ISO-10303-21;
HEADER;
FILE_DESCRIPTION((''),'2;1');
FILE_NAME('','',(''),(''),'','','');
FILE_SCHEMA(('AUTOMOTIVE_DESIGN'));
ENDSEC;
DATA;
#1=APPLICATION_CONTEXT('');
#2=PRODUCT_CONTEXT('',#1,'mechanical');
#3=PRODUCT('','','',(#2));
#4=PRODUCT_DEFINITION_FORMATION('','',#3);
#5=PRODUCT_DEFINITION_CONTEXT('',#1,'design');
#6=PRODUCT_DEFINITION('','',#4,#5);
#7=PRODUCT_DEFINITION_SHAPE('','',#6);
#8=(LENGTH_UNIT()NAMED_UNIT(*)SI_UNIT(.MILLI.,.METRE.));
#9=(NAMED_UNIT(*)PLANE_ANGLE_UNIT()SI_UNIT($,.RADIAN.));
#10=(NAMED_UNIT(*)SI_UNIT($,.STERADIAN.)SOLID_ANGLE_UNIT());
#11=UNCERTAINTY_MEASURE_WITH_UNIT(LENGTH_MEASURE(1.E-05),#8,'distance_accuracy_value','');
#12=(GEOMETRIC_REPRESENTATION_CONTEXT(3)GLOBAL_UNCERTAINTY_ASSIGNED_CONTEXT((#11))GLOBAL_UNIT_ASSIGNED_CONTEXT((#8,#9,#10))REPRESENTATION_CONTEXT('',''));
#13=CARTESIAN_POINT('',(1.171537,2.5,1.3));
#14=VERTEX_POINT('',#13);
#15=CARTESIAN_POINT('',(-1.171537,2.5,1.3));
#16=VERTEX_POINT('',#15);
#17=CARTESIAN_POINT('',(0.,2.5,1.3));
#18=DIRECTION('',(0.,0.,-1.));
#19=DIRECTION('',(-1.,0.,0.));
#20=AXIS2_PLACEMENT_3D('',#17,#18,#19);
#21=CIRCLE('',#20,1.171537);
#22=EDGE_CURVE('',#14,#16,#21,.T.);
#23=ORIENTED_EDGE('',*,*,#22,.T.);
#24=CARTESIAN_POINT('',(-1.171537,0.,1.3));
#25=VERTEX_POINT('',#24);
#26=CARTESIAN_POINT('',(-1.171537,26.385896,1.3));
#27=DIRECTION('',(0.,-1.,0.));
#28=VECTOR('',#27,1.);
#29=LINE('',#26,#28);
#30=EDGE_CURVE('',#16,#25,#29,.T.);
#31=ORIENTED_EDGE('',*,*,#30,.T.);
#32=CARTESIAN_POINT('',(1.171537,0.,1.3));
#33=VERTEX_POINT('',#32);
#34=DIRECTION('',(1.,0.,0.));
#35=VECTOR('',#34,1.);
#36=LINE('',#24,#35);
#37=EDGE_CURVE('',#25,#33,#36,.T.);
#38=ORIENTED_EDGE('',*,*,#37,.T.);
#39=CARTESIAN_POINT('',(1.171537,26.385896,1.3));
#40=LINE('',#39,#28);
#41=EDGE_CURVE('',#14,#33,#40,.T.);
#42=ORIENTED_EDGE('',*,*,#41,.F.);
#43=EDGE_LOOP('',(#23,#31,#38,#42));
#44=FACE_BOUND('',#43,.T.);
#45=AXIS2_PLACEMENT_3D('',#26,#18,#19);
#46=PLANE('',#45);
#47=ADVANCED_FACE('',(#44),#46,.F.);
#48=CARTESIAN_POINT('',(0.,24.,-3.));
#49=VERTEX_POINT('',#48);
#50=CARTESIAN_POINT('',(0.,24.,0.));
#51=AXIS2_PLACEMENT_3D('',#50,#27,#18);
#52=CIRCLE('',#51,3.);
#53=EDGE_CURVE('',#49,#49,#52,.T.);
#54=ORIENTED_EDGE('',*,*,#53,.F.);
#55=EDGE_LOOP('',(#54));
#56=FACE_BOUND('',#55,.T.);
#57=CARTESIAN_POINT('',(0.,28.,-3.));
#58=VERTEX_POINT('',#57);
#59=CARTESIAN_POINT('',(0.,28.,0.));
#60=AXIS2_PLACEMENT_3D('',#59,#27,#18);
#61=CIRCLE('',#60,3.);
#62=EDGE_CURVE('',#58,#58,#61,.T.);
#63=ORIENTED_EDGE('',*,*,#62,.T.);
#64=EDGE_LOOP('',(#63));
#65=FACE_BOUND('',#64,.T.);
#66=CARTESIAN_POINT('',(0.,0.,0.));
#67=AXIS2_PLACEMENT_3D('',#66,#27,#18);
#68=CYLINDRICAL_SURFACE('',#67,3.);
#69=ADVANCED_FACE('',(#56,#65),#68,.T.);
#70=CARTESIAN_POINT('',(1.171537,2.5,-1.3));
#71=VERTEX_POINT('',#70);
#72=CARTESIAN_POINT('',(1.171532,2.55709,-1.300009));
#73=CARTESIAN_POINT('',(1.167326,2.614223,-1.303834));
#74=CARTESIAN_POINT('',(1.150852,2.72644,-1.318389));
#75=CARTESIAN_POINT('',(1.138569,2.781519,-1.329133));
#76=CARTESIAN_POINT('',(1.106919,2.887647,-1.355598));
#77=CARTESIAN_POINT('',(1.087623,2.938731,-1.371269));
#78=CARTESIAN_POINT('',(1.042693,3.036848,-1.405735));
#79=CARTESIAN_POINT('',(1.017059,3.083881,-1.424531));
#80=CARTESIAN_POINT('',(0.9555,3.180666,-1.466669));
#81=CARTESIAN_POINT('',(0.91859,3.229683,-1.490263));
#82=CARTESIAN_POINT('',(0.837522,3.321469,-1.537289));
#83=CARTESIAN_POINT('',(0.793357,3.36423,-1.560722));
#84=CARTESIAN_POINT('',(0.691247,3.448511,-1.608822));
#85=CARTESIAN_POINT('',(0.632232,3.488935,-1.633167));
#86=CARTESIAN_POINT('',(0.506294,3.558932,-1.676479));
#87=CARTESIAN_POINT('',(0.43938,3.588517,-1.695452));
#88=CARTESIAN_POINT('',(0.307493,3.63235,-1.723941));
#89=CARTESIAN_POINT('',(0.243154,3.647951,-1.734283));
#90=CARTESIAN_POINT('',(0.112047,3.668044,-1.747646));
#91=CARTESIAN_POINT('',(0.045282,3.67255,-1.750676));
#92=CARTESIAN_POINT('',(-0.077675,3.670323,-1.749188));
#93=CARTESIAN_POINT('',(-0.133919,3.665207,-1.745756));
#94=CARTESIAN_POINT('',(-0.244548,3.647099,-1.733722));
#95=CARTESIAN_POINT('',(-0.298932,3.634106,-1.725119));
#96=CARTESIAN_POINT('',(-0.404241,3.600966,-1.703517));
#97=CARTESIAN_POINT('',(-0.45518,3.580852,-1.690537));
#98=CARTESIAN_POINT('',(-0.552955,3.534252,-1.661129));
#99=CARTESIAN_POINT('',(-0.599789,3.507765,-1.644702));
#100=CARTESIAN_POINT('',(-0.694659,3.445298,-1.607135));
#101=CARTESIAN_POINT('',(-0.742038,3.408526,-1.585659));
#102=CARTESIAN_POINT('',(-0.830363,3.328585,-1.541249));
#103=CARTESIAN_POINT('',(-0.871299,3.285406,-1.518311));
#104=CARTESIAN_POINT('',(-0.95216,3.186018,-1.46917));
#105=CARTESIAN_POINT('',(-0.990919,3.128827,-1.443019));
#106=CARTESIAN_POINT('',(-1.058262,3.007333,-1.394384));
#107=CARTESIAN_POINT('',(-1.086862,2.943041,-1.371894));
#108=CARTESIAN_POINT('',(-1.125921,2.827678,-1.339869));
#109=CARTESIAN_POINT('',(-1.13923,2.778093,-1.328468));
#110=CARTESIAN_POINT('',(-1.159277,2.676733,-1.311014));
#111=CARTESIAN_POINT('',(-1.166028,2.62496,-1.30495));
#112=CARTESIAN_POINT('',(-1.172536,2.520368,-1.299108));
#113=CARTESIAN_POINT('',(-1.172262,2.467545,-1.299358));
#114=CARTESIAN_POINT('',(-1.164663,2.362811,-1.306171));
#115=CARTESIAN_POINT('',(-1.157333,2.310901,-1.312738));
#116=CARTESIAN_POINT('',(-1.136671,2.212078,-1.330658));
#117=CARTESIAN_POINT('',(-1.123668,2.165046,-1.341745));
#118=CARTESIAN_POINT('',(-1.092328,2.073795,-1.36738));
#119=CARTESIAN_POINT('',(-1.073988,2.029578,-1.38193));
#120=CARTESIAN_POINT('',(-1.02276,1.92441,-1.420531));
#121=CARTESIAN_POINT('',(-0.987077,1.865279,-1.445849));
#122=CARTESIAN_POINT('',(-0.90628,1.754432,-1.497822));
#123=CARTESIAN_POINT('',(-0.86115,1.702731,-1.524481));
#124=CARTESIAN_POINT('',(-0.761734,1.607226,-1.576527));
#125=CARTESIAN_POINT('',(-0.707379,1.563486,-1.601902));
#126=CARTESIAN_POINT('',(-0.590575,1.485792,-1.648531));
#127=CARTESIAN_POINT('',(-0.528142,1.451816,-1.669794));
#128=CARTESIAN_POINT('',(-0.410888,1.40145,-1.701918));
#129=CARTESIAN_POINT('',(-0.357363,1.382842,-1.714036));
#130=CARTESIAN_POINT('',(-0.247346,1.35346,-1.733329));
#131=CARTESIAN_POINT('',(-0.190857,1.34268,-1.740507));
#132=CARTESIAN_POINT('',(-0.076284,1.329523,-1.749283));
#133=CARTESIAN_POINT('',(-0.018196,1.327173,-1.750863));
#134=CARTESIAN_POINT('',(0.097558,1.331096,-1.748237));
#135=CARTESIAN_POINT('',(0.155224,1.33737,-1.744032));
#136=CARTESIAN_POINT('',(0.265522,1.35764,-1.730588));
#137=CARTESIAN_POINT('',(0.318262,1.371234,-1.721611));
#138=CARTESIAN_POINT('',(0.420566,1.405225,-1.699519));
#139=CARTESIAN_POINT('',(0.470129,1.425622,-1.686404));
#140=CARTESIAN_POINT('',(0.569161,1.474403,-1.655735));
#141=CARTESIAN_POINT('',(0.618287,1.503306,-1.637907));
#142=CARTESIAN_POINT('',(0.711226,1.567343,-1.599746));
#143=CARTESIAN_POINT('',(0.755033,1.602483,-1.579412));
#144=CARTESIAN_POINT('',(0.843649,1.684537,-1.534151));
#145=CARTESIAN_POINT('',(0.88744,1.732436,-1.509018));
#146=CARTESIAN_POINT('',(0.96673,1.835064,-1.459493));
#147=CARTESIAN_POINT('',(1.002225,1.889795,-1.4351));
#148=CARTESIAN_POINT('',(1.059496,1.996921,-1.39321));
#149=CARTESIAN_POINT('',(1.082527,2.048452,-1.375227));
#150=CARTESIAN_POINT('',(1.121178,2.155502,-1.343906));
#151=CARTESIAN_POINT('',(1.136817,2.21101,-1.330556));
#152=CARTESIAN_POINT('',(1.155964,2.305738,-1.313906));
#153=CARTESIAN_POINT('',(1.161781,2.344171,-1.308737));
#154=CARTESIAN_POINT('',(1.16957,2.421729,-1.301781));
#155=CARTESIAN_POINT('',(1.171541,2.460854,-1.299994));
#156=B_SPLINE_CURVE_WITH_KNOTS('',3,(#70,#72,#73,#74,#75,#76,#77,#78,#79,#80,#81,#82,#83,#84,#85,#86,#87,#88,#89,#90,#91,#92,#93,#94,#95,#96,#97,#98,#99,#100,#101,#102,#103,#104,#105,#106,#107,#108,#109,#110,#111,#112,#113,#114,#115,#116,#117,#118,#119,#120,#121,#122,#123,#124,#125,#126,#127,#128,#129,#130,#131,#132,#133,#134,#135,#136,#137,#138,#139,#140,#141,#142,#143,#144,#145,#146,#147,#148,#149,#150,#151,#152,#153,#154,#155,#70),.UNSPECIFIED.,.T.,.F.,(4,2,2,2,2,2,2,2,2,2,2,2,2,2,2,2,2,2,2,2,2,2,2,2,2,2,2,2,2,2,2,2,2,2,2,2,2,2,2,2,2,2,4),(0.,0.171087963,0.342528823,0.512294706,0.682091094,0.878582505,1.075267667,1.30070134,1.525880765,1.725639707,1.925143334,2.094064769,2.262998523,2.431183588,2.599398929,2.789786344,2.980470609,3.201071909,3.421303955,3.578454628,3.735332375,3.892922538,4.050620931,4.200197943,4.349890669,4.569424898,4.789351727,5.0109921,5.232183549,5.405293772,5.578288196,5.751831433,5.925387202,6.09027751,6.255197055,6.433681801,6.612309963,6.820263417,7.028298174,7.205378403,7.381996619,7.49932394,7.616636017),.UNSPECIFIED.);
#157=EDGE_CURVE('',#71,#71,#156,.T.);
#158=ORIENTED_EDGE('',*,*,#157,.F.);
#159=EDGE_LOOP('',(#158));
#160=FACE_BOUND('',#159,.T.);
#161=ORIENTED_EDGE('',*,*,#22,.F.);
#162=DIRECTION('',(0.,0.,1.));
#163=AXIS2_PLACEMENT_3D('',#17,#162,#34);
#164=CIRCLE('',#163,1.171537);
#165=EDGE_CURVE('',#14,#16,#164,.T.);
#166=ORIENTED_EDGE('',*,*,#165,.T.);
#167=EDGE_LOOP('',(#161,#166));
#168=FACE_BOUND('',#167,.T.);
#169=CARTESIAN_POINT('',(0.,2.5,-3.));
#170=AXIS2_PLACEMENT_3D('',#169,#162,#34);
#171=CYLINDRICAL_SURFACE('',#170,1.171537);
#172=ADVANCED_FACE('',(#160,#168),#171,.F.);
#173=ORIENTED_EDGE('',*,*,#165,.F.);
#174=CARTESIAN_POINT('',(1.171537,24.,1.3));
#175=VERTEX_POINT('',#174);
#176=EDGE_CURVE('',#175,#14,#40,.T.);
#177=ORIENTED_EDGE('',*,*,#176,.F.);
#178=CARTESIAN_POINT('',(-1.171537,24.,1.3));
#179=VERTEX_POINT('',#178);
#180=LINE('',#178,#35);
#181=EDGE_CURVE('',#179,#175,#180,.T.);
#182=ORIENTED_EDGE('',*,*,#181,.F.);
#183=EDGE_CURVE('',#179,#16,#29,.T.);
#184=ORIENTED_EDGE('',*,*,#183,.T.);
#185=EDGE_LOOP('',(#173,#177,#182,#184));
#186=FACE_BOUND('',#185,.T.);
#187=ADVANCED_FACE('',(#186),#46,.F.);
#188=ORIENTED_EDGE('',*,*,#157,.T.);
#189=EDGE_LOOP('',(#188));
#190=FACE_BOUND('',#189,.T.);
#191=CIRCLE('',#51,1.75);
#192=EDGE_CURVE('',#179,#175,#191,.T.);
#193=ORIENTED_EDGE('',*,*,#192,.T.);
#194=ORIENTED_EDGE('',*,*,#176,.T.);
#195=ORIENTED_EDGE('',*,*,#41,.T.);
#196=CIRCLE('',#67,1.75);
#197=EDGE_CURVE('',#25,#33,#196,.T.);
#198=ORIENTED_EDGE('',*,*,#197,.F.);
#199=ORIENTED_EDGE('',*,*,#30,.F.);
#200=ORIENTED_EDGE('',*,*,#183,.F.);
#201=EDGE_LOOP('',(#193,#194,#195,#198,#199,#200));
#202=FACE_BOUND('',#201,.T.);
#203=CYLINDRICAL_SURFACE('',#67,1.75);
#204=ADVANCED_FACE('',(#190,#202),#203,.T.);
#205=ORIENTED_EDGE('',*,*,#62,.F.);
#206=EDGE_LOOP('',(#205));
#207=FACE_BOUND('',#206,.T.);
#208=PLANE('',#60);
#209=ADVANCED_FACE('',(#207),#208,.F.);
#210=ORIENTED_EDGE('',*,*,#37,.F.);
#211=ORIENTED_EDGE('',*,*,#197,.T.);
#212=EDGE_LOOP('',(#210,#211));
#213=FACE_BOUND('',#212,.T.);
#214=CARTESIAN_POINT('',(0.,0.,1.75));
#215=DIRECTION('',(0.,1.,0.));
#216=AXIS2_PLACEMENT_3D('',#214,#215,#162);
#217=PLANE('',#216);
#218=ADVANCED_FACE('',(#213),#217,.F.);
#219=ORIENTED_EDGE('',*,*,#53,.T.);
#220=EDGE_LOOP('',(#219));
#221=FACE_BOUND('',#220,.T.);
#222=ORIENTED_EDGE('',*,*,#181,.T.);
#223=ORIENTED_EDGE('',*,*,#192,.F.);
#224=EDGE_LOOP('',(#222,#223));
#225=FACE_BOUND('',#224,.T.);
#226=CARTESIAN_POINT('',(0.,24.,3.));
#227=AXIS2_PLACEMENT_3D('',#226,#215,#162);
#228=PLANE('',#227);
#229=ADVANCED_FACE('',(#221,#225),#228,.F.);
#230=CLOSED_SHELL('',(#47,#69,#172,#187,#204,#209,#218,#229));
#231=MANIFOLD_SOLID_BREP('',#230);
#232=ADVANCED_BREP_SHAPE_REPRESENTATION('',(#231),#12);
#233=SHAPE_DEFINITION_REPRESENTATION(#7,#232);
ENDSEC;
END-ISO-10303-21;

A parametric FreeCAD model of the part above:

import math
import FreeCAD as App
import Part
import Sketcher
from FreeCAD import Vector
Q = App.Units.Quantity


def add_polygon(sketch, points):
    """Adds a closed chain of lines whose ends are joined by coincident constraints."""
    first, n = sketch.GeometryCount, len(points)
    for a, b in zip(points, points[1:] + points[:1]):
        sketch.addGeometry(Part.LineSegment(App.Vector(*a, 0), App.Vector(*b, 0)), False)
    for i in range(n):
        sketch.addConstraint(Sketcher.Constraint("Coincident", first + i, 2, first + (i + 1) % n, 1))

doc = App.newDocument("Part")
body = doc.addObject("PartDesign::Body", "Body")

sketch1 = body.newObject("Sketcher::SketchObject", "Sketch")
sketch1.AttachmentSupport = (doc.getObject("YZ_Plane"), [""])
sketch1.MapMode = "FlatFace"
add_polygon(sketch1, [(0, 0), (28, 0), (28, 3), (24, 3), (24, 1.8), (0, 1.8)])
sketch1.addConstraint([
    Sketcher.Constraint("Horizontal", 0),
    Sketcher.Constraint("Vertical", 1),
    Sketcher.Constraint("Horizontal", 2),
    Sketcher.Constraint("Vertical", 3),
    Sketcher.Constraint("Horizontal", 4),
    Sketcher.Constraint("Vertical", 5),
    Sketcher.Constraint("Coincident", 5, 2, -1, 1),
    Sketcher.Constraint("DistanceX", 0, 1, 0, 2, Q("28 mm")),
    Sketcher.Constraint("DistanceX", 2, 2, 2, 1, Q("4 mm")),
    Sketcher.Constraint("DistanceY", 1, 1, 1, 2, Q("3 mm")),
    Sketcher.Constraint("DistanceY", 3, 2, 3, 1, Q("1.25 mm")),
])
revolution = body.newObject("PartDesign::Revolution", "Revolution")
revolution.Profile = sketch1
revolution.ReferenceAxis = (sketch1, ["H_Axis"])
revolution.Angle = 360

sketch2 = body.newObject("Sketcher::SketchObject", "Sketch001")
sketch2.AttachmentSupport = (doc.getObject("XZ_Plane"), [""])
sketch2.MapMode = "FlatFace"
sketch2.addGeometry([
    Part.LineSegment(Vector(-1.2, 1.3, 0), Vector(1.2, 1.3, 0)),
    Part.ArcOfCircle(Part.Circle(Vector(0, 0, 0), Vector(0, 0, 1), 1.7), math.radians(48), math.radians(132)),
], False)
sketch2.addConstraint([
    Sketcher.Constraint("Coincident", 0, 1, 1, 2),
    Sketcher.Constraint("Coincident", 1, 1, 0, 2),
    Sketcher.Constraint("Horizontal", 0),
    Sketcher.Constraint("Coincident", 1, 3, -1, 1),
    Sketcher.Constraint("Radius", 1, Q("1.75 mm")),
    Sketcher.Constraint("DistanceY", -1, 1, 0, 1, Q("1.3 mm")),
])
pocket1 = body.newObject("PartDesign::Pocket", "Pocket")
pocket1.Profile = sketch2
pocket1.Length = 24

sketch3 = body.newObject("Sketcher::SketchObject", "Sketch002")
sketch3.AttachmentSupport = (doc.getObject("XY_Plane"), [""])
sketch3.MapMode = "FlatFace"
sketch3.AttachmentOffset = App.Placement(Vector(0, 0, 1.3), App.Rotation())
sketch3.addGeometry(Part.Circle(Vector(0, 2.5, 0), Vector(0, 0, 1), 1.2), False)
sketch3.addConstraint([
    Sketcher.Constraint("PointOnObject", 0, 3, -2),
    Sketcher.Constraint("DistanceY", -1, 1, 0, 3, Q("2.5 mm")),
    Sketcher.Constraint("Diameter", 0, Q("2.343075 mm")),
])
pocket2 = body.newObject("PartDesign::Pocket", "Pocket001")
pocket2.Profile = sketch3
pocket2.Type = "ThroughAll"

doc.recompute()
